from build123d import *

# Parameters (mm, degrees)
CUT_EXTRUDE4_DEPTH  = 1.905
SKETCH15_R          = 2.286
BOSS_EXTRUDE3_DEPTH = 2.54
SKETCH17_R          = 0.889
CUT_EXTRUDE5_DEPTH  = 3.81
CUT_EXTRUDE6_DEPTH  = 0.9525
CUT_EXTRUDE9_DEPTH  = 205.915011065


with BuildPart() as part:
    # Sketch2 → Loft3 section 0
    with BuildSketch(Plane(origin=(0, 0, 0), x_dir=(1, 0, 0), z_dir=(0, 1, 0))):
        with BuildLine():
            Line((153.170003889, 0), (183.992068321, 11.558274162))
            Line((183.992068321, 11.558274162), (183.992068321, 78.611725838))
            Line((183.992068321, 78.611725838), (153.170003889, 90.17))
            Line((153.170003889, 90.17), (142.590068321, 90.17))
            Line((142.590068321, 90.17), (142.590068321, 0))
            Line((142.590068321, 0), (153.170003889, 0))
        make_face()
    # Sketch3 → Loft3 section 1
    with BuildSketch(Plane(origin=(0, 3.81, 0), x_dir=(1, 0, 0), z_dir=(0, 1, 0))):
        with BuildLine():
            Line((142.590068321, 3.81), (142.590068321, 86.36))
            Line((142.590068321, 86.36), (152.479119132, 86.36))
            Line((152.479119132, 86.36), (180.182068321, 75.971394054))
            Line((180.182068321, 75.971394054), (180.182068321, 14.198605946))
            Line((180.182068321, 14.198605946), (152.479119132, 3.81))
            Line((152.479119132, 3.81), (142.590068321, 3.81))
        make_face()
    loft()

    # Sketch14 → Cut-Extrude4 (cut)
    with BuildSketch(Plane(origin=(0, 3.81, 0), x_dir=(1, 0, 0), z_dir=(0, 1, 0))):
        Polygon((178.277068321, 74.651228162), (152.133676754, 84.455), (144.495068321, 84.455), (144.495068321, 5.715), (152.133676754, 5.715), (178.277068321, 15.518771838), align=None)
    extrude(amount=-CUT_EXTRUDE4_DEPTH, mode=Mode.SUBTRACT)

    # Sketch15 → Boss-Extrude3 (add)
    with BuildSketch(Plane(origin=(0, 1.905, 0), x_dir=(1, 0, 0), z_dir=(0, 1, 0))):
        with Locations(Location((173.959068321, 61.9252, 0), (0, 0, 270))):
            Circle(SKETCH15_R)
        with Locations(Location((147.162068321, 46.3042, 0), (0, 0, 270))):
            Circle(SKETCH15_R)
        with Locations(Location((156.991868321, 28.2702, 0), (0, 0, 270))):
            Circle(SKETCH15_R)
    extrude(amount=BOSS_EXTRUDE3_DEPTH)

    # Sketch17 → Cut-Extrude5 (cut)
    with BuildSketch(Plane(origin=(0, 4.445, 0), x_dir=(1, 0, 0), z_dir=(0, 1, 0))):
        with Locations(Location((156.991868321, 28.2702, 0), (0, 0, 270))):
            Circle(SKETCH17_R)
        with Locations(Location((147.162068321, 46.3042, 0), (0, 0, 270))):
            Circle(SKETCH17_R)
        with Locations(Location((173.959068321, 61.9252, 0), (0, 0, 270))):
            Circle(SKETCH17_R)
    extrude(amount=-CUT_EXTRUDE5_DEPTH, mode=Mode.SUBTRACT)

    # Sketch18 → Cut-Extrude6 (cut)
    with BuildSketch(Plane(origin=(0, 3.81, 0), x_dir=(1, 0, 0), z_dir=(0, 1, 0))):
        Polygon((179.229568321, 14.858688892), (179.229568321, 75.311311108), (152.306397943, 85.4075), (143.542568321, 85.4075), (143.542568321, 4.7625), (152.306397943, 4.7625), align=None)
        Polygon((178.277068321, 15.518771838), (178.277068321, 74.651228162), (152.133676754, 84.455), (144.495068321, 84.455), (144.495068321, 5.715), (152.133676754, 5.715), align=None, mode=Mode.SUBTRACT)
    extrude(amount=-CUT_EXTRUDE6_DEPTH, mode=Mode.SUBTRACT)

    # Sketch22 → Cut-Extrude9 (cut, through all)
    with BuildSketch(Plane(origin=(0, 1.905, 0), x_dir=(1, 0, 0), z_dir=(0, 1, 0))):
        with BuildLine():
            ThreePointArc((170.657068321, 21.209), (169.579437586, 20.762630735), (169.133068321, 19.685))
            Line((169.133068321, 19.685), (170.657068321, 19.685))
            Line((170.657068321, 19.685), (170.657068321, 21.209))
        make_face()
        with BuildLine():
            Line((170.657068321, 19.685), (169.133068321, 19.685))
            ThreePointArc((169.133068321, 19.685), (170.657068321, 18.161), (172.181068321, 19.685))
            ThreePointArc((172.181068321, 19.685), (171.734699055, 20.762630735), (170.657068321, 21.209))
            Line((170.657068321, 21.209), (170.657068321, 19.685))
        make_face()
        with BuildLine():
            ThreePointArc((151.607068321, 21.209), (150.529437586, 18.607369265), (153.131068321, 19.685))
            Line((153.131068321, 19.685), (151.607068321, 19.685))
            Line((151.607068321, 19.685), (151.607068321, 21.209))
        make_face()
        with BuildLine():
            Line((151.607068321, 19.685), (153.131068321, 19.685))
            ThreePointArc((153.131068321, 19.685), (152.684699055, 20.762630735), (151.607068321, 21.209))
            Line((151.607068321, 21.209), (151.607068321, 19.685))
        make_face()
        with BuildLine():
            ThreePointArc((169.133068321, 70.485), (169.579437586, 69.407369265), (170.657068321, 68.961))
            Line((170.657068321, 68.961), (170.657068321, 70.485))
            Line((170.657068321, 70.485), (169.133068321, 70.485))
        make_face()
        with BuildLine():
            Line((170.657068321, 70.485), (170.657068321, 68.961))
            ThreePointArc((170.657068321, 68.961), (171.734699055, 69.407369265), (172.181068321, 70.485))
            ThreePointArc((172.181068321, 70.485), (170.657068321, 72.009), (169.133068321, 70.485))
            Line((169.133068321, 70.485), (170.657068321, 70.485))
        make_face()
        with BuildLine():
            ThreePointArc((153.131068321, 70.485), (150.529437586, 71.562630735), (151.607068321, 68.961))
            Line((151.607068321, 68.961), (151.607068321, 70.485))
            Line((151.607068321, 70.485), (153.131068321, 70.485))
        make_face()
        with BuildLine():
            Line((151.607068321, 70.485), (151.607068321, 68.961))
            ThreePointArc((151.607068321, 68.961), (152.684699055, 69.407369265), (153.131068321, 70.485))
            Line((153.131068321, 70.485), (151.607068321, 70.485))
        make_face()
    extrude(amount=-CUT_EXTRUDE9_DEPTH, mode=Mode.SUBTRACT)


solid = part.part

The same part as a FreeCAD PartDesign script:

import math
import FreeCAD as App
import Part
import Sketcher
Q = App.Units.Quantity

doc = App.newDocument("Part")
body = doc.addObject("PartDesign::Body", "Body")

sketch1 = body.newObject("Sketcher::SketchObject", "Sketch")
sketch1.AttachmentSupport = (doc.getObject("XZ_Plane"), [""])
sketch1.MapMode = "FlatFace"
sketch1.addGeometry([
    Part.LineSegment(App.Vector(153, 0, 0), App.Vector(184, -12, 0)),
    Part.LineSegment(App.Vector(184, -12, 0), App.Vector(184, -79, 0)),
    Part.LineSegment(App.Vector(184, -79, 0), App.Vector(153, -90, 0)),
    Part.LineSegment(App.Vector(153, -90, 0), App.Vector(143, -90, 0)),
    Part.LineSegment(App.Vector(143, -90, 0), App.Vector(143, 0, 0)),
    Part.LineSegment(App.Vector(143, 0, 0), App.Vector(153, 0, 0)),
], False)
sketch1.addConstraint([
    Sketcher.Constraint("Coincident", 0, 2, 1, 1),
    Sketcher.Constraint("Coincident", 1, 2, 2, 1),
    Sketcher.Constraint("Coincident", 2, 2, 3, 1),
    Sketcher.Constraint("Coincident", 3, 2, 4, 1),
    Sketcher.Constraint("Coincident", 4, 2, 5, 1),
    Sketcher.Constraint("Coincident", 5, 2, 0, 1),
    Sketcher.Constraint("Vertical", 1),
    Sketcher.Constraint("Horizontal", 3),
    Sketcher.Constraint("Vertical", 4),
    Sketcher.Constraint("Horizontal", 5),
    Sketcher.Constraint("PointOnObject", 4, 2, -1),
    Sketcher.Constraint("Vertical", 2, 2, 5, 2),
    Sketcher.Constraint("Equal", 0, 2),
    Sketcher.Constraint("DistanceY", 4, 1, 4, 2, Q("3.55 in")),
    Sketcher.Constraint("DistanceX", 3, 2, 1, 2, Q("1.63 in")),
    Sketcher.Constraint("DistanceY", 1, 2, 1, 1, Q("67.053452 mm")),
    Sketcher.Constraint("Distance", 0, Q("32.917979 mm")),
    Sketcher.Constraint("DistanceX", -1, 1, 0, 2, Q("183.992068 mm")),
])

sketch2 = body.newObject("Sketcher::SketchObject", "Sketch001")
sketch2.AttachmentSupport = (doc.getObject("XZ_Plane"), [""])
sketch2.MapMode = "FlatFace"
sketch2.AttachmentOffset = App.Placement(App.Vector(0, 0, -0.15 * 25.4), App.Rotation())
sketch2.addGeometry([
    Part.LineSegment(App.Vector(143, -86, 0), App.Vector(143, -4, 0)),
    Part.LineSegment(App.Vector(143, -4, 0), App.Vector(152, -4, 0)),
    Part.LineSegment(App.Vector(152, -4, 0), App.Vector(180, -14, 0)),
    Part.LineSegment(App.Vector(180, -14, 0), App.Vector(180, -76, 0)),
    Part.LineSegment(App.Vector(180, -76, 0), App.Vector(152, -86, 0)),
    Part.LineSegment(App.Vector(152, -86, 0), App.Vector(143, -86, 0)),
], False)
sketch2.addConstraint([
    Sketcher.Constraint("Coincident", 0, 2, 1, 1),
    Sketcher.Constraint("Coincident", 1, 2, 2, 1),
    Sketcher.Constraint("Coincident", 2, 2, 3, 1),
    Sketcher.Constraint("Coincident", 3, 2, 4, 1),
    Sketcher.Constraint("Coincident", 4, 2, 5, 1),
    Sketcher.Constraint("Coincident", 5, 2, 0, 1),
    Sketcher.Constraint("Vertical", 0),
    Sketcher.Constraint("Horizontal", 1),
    Sketcher.Constraint("Vertical", 3),
    Sketcher.Constraint("Horizontal", 5),
    Sketcher.Constraint("Vertical", 1, 2, 4, 2),
    Sketcher.Constraint("Equal", 2, 4),
    Sketcher.Constraint("DistanceY", 0, 1, 0, 2, Q("3.25 in")),
    Sketcher.Constraint("DistanceY", 4, 2, -1, 1, Q("3.4 in")),
    Sketcher.Constraint("DistanceX", 0, 2, 2, 2, Q("1.48 in")),
    Sketcher.Constraint("DistanceX", 1, 1, 1, 2, Q("9.889051 mm")),
    Sketcher.Constraint("DistanceY", 3, 2, 3, 1, Q("61.772788 mm")),
    Sketcher.Constraint("DistanceX", -1, 1, 0, 2, Q("142.590068 mm")),
])

additiveloft = body.newObject("PartDesign::AdditiveLoft", "AdditiveLoft")
additiveloft.Profile = sketch1
additiveloft.Sections = [sketch2]

sketch3 = body.newObject("Sketcher::SketchObject", "Sketch002")
sketch3.AttachmentSupport = (doc.getObject("XZ_Plane"), [""])
sketch3.MapMode = "FlatFace"
sketch3.AttachmentOffset = App.Placement(App.Vector(0, 0, -0.15 * 25.4), App.Rotation())
sketch3.addGeometry([
    Part.LineSegment(App.Vector(178, -75, 0), App.Vector(152, -84, 0)),
    Part.LineSegment(App.Vector(152, -84, 0), App.Vector(144, -84, 0)),
    Part.LineSegment(App.Vector(144, -84, 0), App.Vector(144, -6, 0)),
    Part.LineSegment(App.Vector(144, -6, 0), App.Vector(152, -6, 0)),
    Part.LineSegment(App.Vector(152, -6, 0), App.Vector(178, -16, 0)),
    Part.LineSegment(App.Vector(178, -16, 0), App.Vector(178, -75, 0)),
], False)
sketch3.addConstraint([
    Sketcher.Constraint("Coincident", 0, 2, 1, 1),
    Sketcher.Constraint("Coincident", 1, 2, 2, 1),
    Sketcher.Constraint("Coincident", 2, 2, 3, 1),
    Sketcher.Constraint("Coincident", 3, 2, 4, 1),
    Sketcher.Constraint("Coincident", 4, 2, 5, 1),
    Sketcher.Constraint("Coincident", 5, 2, 0, 1),
    Sketcher.Constraint("Horizontal", 1),
    Sketcher.Constraint("Vertical", 2),
    Sketcher.Constraint("Horizontal", 3),
    Sketcher.Constraint("Vertical", 5),
    Sketcher.Constraint("Vertical", 0, 2, 3, 2),
    Sketcher.Constraint("Equal", 0, 4),
    Sketcher.Constraint("DistanceY", 2, 1, 2, 2, Q("3.1 in")),
    Sketcher.Constraint("DistanceX", 2, 2, 4, 2, Q("1.33 in")),
    Sketcher.Constraint("DistanceY", 0, 2, -1, 1, Q("3.325 in")),
    Sketcher.Constraint("DistanceX", 1, 2, 1, 1, Q("7.638608 mm")),
    Sketcher.Constraint("DistanceY", 5, 2, 5, 1, Q("59.132456 mm")),
    Sketcher.Constraint("DistanceX", -1, 1, 1, 2, Q("144.495068 mm")),
])
pocket1 = body.newObject("PartDesign::Pocket", "Pocket")
pocket1.Profile = sketch3
pocket1.Length = Q("0.075 in")
pocket1.Reversed = True

sketch4 = body.newObject("Sketcher::SketchObject", "Sketch003")
sketch4.AttachmentSupport = (doc.getObject("XZ_Plane"), [""])
sketch4.MapMode = "FlatFace"
sketch4.AttachmentOffset = App.Placement(App.Vector(0, 0, -0.075 * 25.4), App.Rotation())
sketch4.addGeometry([
    Part.Circle(App.Vector(174, -61.9, 0), App.Vector(0, 0, 1), 2.3),
    Part.Circle(App.Vector(147.2, -46.3, 0), App.Vector(0, 0, 1), 2.3),
    Part.Circle(App.Vector(157, -28.3, 0), App.Vector(0, 0, 1), 2.3),
], False)
sketch4.addConstraint([
    Sketcher.Constraint("Equal", 0, 1),
    Sketcher.Constraint("Equal", 1, 2),
    Sketcher.Constraint("Diameter", 0, Q("0.18 in")),
    Sketcher.Constraint("DistanceY", 1, 3, 2, 3, Q("0.71 in")),
    Sketcher.Constraint("DistanceY", 0, 3, -1, 1, Q("2.438 in")),
    Sketcher.Constraint("DistanceY", 1, 3, -1, 1, Q("1.823 in")),
    Sketcher.Constraint("DistanceX", 1, 3, 0, 3, Q("1.055 in")),
    Sketcher.Constraint("DistanceX", 1, 3, 2, 3, Q("0.387 in")),
    Sketcher.Constraint("DistanceX", -1, 1, 0, 3, Q("173.959068 mm")),
])
pad1 = body.newObject("PartDesign::Pad", "Pad")
pad1.Profile = sketch4
pad1.Length = Q("0.1 in")
pad1.Reversed = True

sketch5 = body.newObject("Sketcher::SketchObject", "Sketch004")
sketch5.AttachmentSupport = (doc.getObject("XZ_Plane"), [""])
sketch5.MapMode = "FlatFace"
sketch5.AttachmentOffset = App.Placement(App.Vector(0, 0, -0.175 * 25.4), App.Rotation())
sketch5.addGeometry([
    Part.Circle(App.Vector(157, -28.3, 0), App.Vector(0, 0, 1), 0.9),
    Part.Circle(App.Vector(147.2, -46.3, 0), App.Vector(0, 0, 1), 0.9),
    Part.Circle(App.Vector(174, -61.9, 0), App.Vector(0, 0, 1), 0.9),
], False)
sketch5.addConstraint([
    Sketcher.Constraint("Equal", 0, 1),
    Sketcher.Constraint("Equal", 1, 2),
    Sketcher.Constraint("Diameter", 0, Q("0.07 in")),
    Sketcher.Constraint("DistanceY", 1, 3, 0, 3, Q("0.71 in")),
    Sketcher.Constraint("DistanceY", 0, 3, -1, 1, Q("1.113 in")),
    Sketcher.Constraint("DistanceY", 2, 3, -1, 1, Q("2.438 in")),
    Sketcher.Constraint("DistanceX", 1, 3, 0, 3, Q("0.387 in")),
    Sketcher.Constraint("DistanceX", 1, 3, 2, 3, Q("1.055 in")),
    Sketcher.Constraint("DistanceX", -1, 1, 0, 3, Q("156.991868 mm")),
])
pocket2 = body.newObject("PartDesign::Pocket", "Pocket001")
pocket2.Profile = sketch5
pocket2.Length = Q("0.15 in")
pocket2.Reversed = True

sketch6 = body.newObject("Sketcher::SketchObject", "Sketch005")
sketch6.AttachmentSupport = (doc.getObject("XZ_Plane"), [""])
sketch6.MapMode = "FlatFace"
sketch6.AttachmentOffset = App.Placement(App.Vector(0, 0, -0.15 * 25.4), App.Rotation())
sketch6.addGeometry([
    Part.LineSegment(App.Vector(179, -15, 0), App.Vector(179, -75, 0)),
    Part.LineSegment(App.Vector(179, -75, 0), App.Vector(152, -85, 0)),
    Part.LineSegment(App.Vector(152, -85, 0), App.Vector(144, -85, 0)),
    Part.LineSegment(App.Vector(144, -85, 0), App.Vector(144, -5, 0)),
    Part.LineSegment(App.Vector(144, -5, 0), App.Vector(152, -5, 0)),
    Part.LineSegment(App.Vector(152, -5, 0), App.Vector(179, -15, 0)),
    Part.LineSegment(App.Vector(178, -75, 0), App.Vector(178, -16, 0)),
    Part.LineSegment(App.Vector(178, -16, 0), App.Vector(152, -6, 0)),
    Part.LineSegment(App.Vector(152, -6, 0), App.Vector(144, -6, 0)),
    Part.LineSegment(App.Vector(144, -6, 0), App.Vector(144, -84, 0)),
    Part.LineSegment(App.Vector(144, -84, 0), App.Vector(152, -84, 0)),
    Part.LineSegment(App.Vector(152, -84, 0), App.Vector(178, -75, 0)),
], False)
sketch6.addConstraint([
    Sketcher.Constraint("Coincident", 0, 2, 1, 1),
    Sketcher.Constraint("Coincident", 1, 2, 2, 1),
    Sketcher.Constraint("Coincident", 2, 2, 3, 1),
    Sketcher.Constraint("Coincident", 3, 2, 4, 1),
    Sketcher.Constraint("Coincident", 4, 2, 5, 1),
    Sketcher.Constraint("Coincident", 5, 2, 0, 1),
    Sketcher.Constraint("Coincident", 6, 2, 7, 1),
    Sketcher.Constraint("Coincident", 7, 2, 8, 1),
    Sketcher.Constraint("Coincident", 8, 2, 9, 1),
    Sketcher.Constraint("Coincident", 9, 2, 10, 1),
    Sketcher.Constraint("Coincident", 10, 2, 11, 1),
    Sketcher.Constraint("Coincident", 11, 2, 6, 1),
    Sketcher.Constraint("Vertical", 0),
    Sketcher.Constraint("Horizontal", 2),
    Sketcher.Constraint("Vertical", 3),
    Sketcher.Constraint("Horizontal", 4),
    Sketcher.Constraint("Vertical", 6),
    Sketcher.Constraint("Horizontal", 8),
    Sketcher.Constraint("Vertical", 9),
    Sketcher.Constraint("Horizontal", 10),
    Sketcher.Constraint("Parallel", 5, 7),
    Sketcher.Constraint("Parallel", 1, 11),
    Sketcher.Constraint("Vertical", 1, 2, 4, 2),
    Sketcher.Constraint("Vertical", 7, 2, 10, 2),
    Sketcher.Constraint("Equal", 1, 5),
    Sketcher.Constraint("DistanceY", 9, 2, 9, 1, Q("3.1 in")),
    Sketcher.Constraint("DistanceY", 3, 1, 3, 2, Q("3.175 in")),
    Sketcher.Constraint("DistanceX", 8, 2, 6, 2, Q("1.33 in")),
    Sketcher.Constraint("DistanceY", 3, 2, -1, 1, Q("0.1875 in")),
    Sketcher.Constraint("DistanceY", 7, 2, -1, 1, Q("0.225 in")),
    Sketcher.Constraint("DistanceX", 2, 2, 0, 2, Q("1.405 in")),
    Sketcher.Constraint("DistanceX", 6, 2, 5, 2, Q("0.0375 in")),
    Sketcher.Constraint("DistanceX", 7, 2, 4, 2, Q("0.0068 in")),
    Sketcher.Constraint("DistanceX", 2, 2, 2, 1, Q("8.76383 mm")),
    Sketcher.Constraint("Distance", 1, Q("28.753959 mm")),
    Sketcher.Constraint("DistanceX", -1, 1, 0, 2, Q("179.229568 mm")),
])
pocket3 = body.newObject("PartDesign::Pocket", "Pocket002")
pocket3.Profile = sketch6
pocket3.Length = Q("0.0375 in")
pocket3.Reversed = True

sketch7 = body.newObject("Sketcher::SketchObject", "Sketch006")
sketch7.AttachmentSupport = (doc.getObject("XZ_Plane"), [""])
sketch7.MapMode = "FlatFace"
sketch7.AttachmentOffset = App.Placement(App.Vector(0, 0, -0.075 * 25.4), App.Rotation())
sketch7.addGeometry([
    Part.ArcOfCircle(Part.Circle(App.Vector(170.7, -19.7, 0), App.Vector(0, 0, 1), 1.5), math.radians(180), math.radians(270)),
    Part.ArcOfCircle(Part.Circle(App.Vector(170.7, -19.7, 0), App.Vector(0, 0, 1), 1.5), math.radians(0), math.radians(180)),
    Part.ArcOfCircle(Part.Circle(App.Vector(170.7, -19.7, 0), App.Vector(0, 0, 1), 1.5), math.radians(-90), math.radians(0)),
    Part.ArcOfCircle(Part.Circle(App.Vector(151.6, -19.7, 0), App.Vector(0, 0, 1), 1.5), math.radians(0), math.radians(270)),
    Part.ArcOfCircle(Part.Circle(App.Vector(151.6, -19.7, 0), App.Vector(0, 0, 1), 1.5), math.radians(-90), math.radians(0)),
    Part.ArcOfCircle(Part.Circle(App.Vector(170.7, -70.5, 0), App.Vector(0, 0, 1), 1.5), math.radians(90), math.radians(180)),
    Part.ArcOfCircle(Part.Circle(App.Vector(170.7, -70.5, 0), App.Vector(0, 0, 1), 1.5), math.radians(0), math.radians(90)),
    Part.ArcOfCircle(Part.Circle(App.Vector(170.7, -70.5, 0), App.Vector(0, 0, 1), 1.5), math.radians(180), math.radians(360)),
    Part.ArcOfCircle(Part.Circle(App.Vector(151.6, -70.5, 0), App.Vector(0, 0, 1), 1.5), math.radians(90), math.radians(360)),
    Part.ArcOfCircle(Part.Circle(App.Vector(151.6, -70.5, 0), App.Vector(0, 0, 1), 1.5), math.radians(0), math.radians(90)),
], False)
sketch7.addConstraint([
    Sketcher.Constraint("Tangent", 0, 1, 1, 2),
    Sketcher.Constraint("Tangent", 1, 1, 2, 2),
    Sketcher.Constraint("Tangent", 2, 1, 0, 2),
    Sketcher.Constraint("Tangent", 3, 1, 4, 2),
    Sketcher.Constraint("Coincident", 4, 1, 3, 2),
    Sketcher.Constraint("Tangent", 5, 1, 6, 2),
    Sketcher.Constraint("Tangent", 6, 1, 7, 2),
    Sketcher.Constraint("Tangent", 7, 1, 5, 2),
    Sketcher.Constraint("Tangent", 8, 1, 9, 2),
    Sketcher.Constraint("Coincident", 9, 1, 8, 2),
    Sketcher.Constraint("Equal", 2, 3),
    Sketcher.Constraint("Equal", 4, 5),
    Sketcher.Constraint("Equal", 7, 8),
    Sketcher.Constraint("Horizontal", 2, 3, 3, 3),
    Sketcher.Constraint("Horizontal", 7, 3, 8, 3),
    Sketcher.Constraint("Horizontal", 4, 3, 0, 1),
    Sketcher.Constraint("Horizontal", 0, 1, 1, 1),
    Sketcher.Constraint("Horizontal", 1, 1, 3, 1),
    Sketcher.Constraint("Horizontal", 9, 3, 6, 1),
    Sketcher.Constraint("Horizontal", 6, 1, 7, 1),
    Sketcher.Constraint("Horizontal", 7, 1, 9, 1),
    Sketcher.Constraint("Vertical", 2, 3, 5, 3),
    Sketcher.Constraint("Vertical", 4, 3, 8, 3),
    Sketcher.Constraint("Vertical", 7, 3, 2, 1),
    Sketcher.Constraint("Vertical", 9, 3, 4, 1),
    Sketcher.Constraint("Vertical", 2, 1, 5, 1),
    Sketcher.Constraint("Vertical", 4, 1, 8, 1),
    Sketcher.Constraint("Radius", 0, Q("0.06 in")),
    Sketcher.Constraint("DistanceY", 5, 3, 0, 3, Q("2 in")),
    Sketcher.Constraint("DistanceX", 3, 3, 0, 3, Q("0.75 in")),
    Sketcher.Constraint("DistanceY", 0, 3, -1, 1, Q("0.775 in")),
    Sketcher.Constraint("DistanceX", -1, 1, 0, 3, Q("170.657068 mm")),
])
pocket4 = body.newObject("PartDesign::Pocket", "Pocket003")
pocket4.Profile = sketch7
pocket4.Type = "ThroughAll"
pocket4.Reversed = True

doc.recompute()
